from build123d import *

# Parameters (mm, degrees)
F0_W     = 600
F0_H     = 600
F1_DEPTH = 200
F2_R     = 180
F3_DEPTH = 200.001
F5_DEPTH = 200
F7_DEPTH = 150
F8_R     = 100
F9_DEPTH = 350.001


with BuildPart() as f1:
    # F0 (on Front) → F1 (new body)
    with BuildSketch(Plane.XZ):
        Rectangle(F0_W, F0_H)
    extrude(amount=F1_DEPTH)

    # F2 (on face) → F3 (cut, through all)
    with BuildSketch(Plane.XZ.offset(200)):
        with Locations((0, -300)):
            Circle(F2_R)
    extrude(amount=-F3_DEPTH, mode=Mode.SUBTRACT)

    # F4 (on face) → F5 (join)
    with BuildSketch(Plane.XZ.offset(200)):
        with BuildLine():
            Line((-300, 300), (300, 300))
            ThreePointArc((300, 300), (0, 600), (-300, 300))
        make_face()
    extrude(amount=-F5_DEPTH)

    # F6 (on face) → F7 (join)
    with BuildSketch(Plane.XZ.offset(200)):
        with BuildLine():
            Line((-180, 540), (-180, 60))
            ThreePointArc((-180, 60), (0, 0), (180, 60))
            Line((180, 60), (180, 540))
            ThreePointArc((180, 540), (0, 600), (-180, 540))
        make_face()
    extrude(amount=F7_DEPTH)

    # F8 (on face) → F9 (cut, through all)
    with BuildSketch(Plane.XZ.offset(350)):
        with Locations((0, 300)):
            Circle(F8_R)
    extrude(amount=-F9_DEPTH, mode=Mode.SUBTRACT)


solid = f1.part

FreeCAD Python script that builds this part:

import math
import FreeCAD as App
import Part
import Sketcher
from FreeCAD import Vector
Q = App.Units.Quantity


def add_polygon(sketch, points):
    """Adds a closed chain of lines whose ends are joined by coincident constraints."""
    first, n = sketch.GeometryCount, len(points)
    for a, b in zip(points, points[1:] + points[:1]):
        sketch.addGeometry(Part.LineSegment(App.Vector(*a, 0), App.Vector(*b, 0)), False)
    for i in range(n):
        sketch.addConstraint(Sketcher.Constraint("Coincident", first + i, 2, first + (i + 1) % n, 1))

doc = App.newDocument("Part")
params = doc.addObject("Spreadsheet::Sheet", "Params")
for row, (alias, value) in enumerate([
    ("sketch1_width", "600 mm"),
    ("pad1_length", "200 mm"),
    ("sketch2_diameter", "360 mm"),
    ("sketch3_radius", "300 mm"),
    ("pad2_length", "200 mm"),
    ("sketch4_radius", "300 mm"),
    ("sketch4_height", "480 mm"),
    ("pad3_length", "150 mm"),
    ("sketch5_diameter", "200 mm"),
], start=1):
    params.set(f"A{row}", alias)
    params.set(f"B{row}", "=" + value)
    params.setAlias(f"B{row}", alias)

body = doc.addObject("PartDesign::Body", "Body")

sketch1 = doc.addObject("Sketcher::SketchObject", "Sketch")
body.addObject(sketch1)
sketch1.AttachmentSupport = (doc.XZ_Plane, [""])
sketch1.MapMode = "FlatFace"
add_polygon(sketch1, [(-300, 300), (-300, -300), (300, -300), (300, 300)])
sketch1.addConstraint([
    Sketcher.Constraint("Vertical", 0),
    Sketcher.Constraint("Horizontal", 1),
    Sketcher.Constraint("Vertical", 2),
    Sketcher.Constraint("Horizontal", 3),
    Sketcher.Constraint("Symmetric", 0, 2, 2, 2, -1, 1),
    Sketcher.Constraint("Equal", 3, 0),
    Sketcher.Constraint("DistanceX", 1, 1, 1, 2, Q("600 mm")),
])
sketch1.setExpression("Constraints[10]", "Params.sketch1_width")
pad1 = doc.addObject("PartDesign::Pad", "Pad")
body.addObject(pad1)
pad1.Profile = sketch1
pad1.setExpression("Length", "Params.pad1_length")

sketch2 = doc.addObject("Sketcher::SketchObject", "Sketch001")
body.addObject(sketch2)
sketch2.AttachmentSupport = (doc.XZ_Plane, [""])
sketch2.MapMode = "FlatFace"
sketch2.AttachmentOffset = App.Placement(Vector(0, 0, 200), App.Rotation())
sketch2.addGeometry(Part.Circle(Vector(0, -300, 0), Vector(0, 0, 1), 180), False)
sketch2.addConstraint([
    Sketcher.Constraint("PointOnObject", 0, 3, -2),
    Sketcher.Constraint("Diameter", 0, Q("360 mm")),
    Sketcher.Constraint("DistanceY", 0, 3, -1, 1, Q("300 mm")),
])
sketch2.setExpression("Constraints[1]", "Params.sketch2_diameter")
pocket1 = doc.addObject("PartDesign::Pocket", "Pocket")
body.addObject(pocket1)
pocket1.Profile = sketch2
pocket1.Type = "ThroughAll"

sketch3 = doc.addObject("Sketcher::SketchObject", "Sketch002")
body.addObject(sketch3)
sketch3.AttachmentSupport = (doc.XZ_Plane, [""])
sketch3.MapMode = "FlatFace"
sketch3.AttachmentOffset = App.Placement(Vector(0, 0, 200), App.Rotation())
sketch3.addGeometry([
    Part.LineSegment(Vector(-300, 300, 0), Vector(300, 300, 0)),
    Part.ArcOfCircle(Part.Circle(Vector(0, 300, 0), Vector(0, 0, 1), 300), math.radians(0), math.radians(180)),
], False)
sketch3.addConstraint([
    Sketcher.Constraint("Coincident", 0, 1, 1, 2),
    Sketcher.Constraint("Coincident", 1, 1, 0, 2),
    Sketcher.Constraint("Horizontal", 0),
    Sketcher.Constraint("PointOnObject", 1, 3, -2),
    Sketcher.Constraint("Horizontal", 1, 3, 0, 1),
    Sketcher.Constraint("Radius", 1, Q("300 mm")),
    Sketcher.Constraint("DistanceY", -1, 1, 1, 3, Q("300 mm")),
])
sketch3.setExpression("Constraints[5]", "Params.sketch3_radius")
pad2 = doc.addObject("PartDesign::Pad", "Pad001")
body.addObject(pad2)
pad2.Profile = sketch3
pad2.setExpression("Length", "Params.pad2_length")
pad2.Reversed = True

sketch4 = doc.addObject("Sketcher::SketchObject", "Sketch003")
body.addObject(sketch4)
sketch4.AttachmentSupport = (doc.XZ_Plane, [""])
sketch4.MapMode = "FlatFace"
sketch4.AttachmentOffset = App.Placement(Vector(0, 0, 200), App.Rotation())
sketch4.addGeometry([
    Part.LineSegment(Vector(-180, 540, 0), Vector(-180, 60, 0)),
    Part.ArcOfCircle(Part.Circle(Vector(0, 300, 0), Vector(0, 0, 1), 300), math.radians(-127), math.radians(-53)),
    Part.LineSegment(Vector(180, 60, 0), Vector(180, 540, 0)),
    Part.ArcOfCircle(Part.Circle(Vector(0, 300, 0), Vector(0, 0, 1), 300), math.radians(53), math.radians(127)),
], False)
sketch4.addConstraint([
    Sketcher.Constraint("Coincident", 0, 2, 1, 1),
    Sketcher.Constraint("Coincident", 1, 2, 2, 1),
    Sketcher.Constraint("Coincident", 2, 2, 3, 1),
    Sketcher.Constraint("Coincident", 3, 2, 0, 1),
    Sketcher.Constraint("Vertical", 0),
    Sketcher.Constraint("Vertical", 2),
    Sketcher.Constraint("Coincident", 3, 3, 1, 3),
    Sketcher.Constraint("Equal", 1, 3),
    Sketcher.Constraint("Symmetric", 0, 2, 1, 2, -2),
    Sketcher.Constraint("Radius", 1, Q("300 mm")),
    Sketcher.Constraint("DistanceY", 0, 2, 0, 1, Q("480 mm")),
    Sketcher.Constraint("DistanceY", -1, 1, 1, 3, Q("300 mm")),
])
sketch4.setExpression("Constraints[9]", "Params.sketch4_radius")
sketch4.setExpression("Constraints[10]", "Params.sketch4_height")
pad3 = doc.addObject("PartDesign::Pad", "Pad002")
body.addObject(pad3)
pad3.Profile = sketch4
pad3.setExpression("Length", "Params.pad3_length")

sketch5 = doc.addObject("Sketcher::SketchObject", "Sketch004")
body.addObject(sketch5)
sketch5.AttachmentSupport = (doc.XZ_Plane, [""])
sketch5.MapMode = "FlatFace"
sketch5.AttachmentOffset = App.Placement(Vector(0, 0, 350), App.Rotation())
sketch5.addGeometry(Part.Circle(Vector(0, 300, 0), Vector(0, 0, 1), 100), False)
sketch5.addConstraint([
    Sketcher.Constraint("PointOnObject", 0, 3, -2),
    Sketcher.Constraint("Diameter", 0, Q("200 mm")),
    Sketcher.Constraint("DistanceY", -1, 1, 0, 3, Q("300 mm")),
])
sketch5.setExpression("Constraints[1]", "Params.sketch5_diameter")
pocket2 = doc.addObject("PartDesign::Pocket", "Pocket001")
body.addObject(pocket2)
pocket2.Profile = sketch5
pocket2.Type = "ThroughAll"

doc.recompute()
